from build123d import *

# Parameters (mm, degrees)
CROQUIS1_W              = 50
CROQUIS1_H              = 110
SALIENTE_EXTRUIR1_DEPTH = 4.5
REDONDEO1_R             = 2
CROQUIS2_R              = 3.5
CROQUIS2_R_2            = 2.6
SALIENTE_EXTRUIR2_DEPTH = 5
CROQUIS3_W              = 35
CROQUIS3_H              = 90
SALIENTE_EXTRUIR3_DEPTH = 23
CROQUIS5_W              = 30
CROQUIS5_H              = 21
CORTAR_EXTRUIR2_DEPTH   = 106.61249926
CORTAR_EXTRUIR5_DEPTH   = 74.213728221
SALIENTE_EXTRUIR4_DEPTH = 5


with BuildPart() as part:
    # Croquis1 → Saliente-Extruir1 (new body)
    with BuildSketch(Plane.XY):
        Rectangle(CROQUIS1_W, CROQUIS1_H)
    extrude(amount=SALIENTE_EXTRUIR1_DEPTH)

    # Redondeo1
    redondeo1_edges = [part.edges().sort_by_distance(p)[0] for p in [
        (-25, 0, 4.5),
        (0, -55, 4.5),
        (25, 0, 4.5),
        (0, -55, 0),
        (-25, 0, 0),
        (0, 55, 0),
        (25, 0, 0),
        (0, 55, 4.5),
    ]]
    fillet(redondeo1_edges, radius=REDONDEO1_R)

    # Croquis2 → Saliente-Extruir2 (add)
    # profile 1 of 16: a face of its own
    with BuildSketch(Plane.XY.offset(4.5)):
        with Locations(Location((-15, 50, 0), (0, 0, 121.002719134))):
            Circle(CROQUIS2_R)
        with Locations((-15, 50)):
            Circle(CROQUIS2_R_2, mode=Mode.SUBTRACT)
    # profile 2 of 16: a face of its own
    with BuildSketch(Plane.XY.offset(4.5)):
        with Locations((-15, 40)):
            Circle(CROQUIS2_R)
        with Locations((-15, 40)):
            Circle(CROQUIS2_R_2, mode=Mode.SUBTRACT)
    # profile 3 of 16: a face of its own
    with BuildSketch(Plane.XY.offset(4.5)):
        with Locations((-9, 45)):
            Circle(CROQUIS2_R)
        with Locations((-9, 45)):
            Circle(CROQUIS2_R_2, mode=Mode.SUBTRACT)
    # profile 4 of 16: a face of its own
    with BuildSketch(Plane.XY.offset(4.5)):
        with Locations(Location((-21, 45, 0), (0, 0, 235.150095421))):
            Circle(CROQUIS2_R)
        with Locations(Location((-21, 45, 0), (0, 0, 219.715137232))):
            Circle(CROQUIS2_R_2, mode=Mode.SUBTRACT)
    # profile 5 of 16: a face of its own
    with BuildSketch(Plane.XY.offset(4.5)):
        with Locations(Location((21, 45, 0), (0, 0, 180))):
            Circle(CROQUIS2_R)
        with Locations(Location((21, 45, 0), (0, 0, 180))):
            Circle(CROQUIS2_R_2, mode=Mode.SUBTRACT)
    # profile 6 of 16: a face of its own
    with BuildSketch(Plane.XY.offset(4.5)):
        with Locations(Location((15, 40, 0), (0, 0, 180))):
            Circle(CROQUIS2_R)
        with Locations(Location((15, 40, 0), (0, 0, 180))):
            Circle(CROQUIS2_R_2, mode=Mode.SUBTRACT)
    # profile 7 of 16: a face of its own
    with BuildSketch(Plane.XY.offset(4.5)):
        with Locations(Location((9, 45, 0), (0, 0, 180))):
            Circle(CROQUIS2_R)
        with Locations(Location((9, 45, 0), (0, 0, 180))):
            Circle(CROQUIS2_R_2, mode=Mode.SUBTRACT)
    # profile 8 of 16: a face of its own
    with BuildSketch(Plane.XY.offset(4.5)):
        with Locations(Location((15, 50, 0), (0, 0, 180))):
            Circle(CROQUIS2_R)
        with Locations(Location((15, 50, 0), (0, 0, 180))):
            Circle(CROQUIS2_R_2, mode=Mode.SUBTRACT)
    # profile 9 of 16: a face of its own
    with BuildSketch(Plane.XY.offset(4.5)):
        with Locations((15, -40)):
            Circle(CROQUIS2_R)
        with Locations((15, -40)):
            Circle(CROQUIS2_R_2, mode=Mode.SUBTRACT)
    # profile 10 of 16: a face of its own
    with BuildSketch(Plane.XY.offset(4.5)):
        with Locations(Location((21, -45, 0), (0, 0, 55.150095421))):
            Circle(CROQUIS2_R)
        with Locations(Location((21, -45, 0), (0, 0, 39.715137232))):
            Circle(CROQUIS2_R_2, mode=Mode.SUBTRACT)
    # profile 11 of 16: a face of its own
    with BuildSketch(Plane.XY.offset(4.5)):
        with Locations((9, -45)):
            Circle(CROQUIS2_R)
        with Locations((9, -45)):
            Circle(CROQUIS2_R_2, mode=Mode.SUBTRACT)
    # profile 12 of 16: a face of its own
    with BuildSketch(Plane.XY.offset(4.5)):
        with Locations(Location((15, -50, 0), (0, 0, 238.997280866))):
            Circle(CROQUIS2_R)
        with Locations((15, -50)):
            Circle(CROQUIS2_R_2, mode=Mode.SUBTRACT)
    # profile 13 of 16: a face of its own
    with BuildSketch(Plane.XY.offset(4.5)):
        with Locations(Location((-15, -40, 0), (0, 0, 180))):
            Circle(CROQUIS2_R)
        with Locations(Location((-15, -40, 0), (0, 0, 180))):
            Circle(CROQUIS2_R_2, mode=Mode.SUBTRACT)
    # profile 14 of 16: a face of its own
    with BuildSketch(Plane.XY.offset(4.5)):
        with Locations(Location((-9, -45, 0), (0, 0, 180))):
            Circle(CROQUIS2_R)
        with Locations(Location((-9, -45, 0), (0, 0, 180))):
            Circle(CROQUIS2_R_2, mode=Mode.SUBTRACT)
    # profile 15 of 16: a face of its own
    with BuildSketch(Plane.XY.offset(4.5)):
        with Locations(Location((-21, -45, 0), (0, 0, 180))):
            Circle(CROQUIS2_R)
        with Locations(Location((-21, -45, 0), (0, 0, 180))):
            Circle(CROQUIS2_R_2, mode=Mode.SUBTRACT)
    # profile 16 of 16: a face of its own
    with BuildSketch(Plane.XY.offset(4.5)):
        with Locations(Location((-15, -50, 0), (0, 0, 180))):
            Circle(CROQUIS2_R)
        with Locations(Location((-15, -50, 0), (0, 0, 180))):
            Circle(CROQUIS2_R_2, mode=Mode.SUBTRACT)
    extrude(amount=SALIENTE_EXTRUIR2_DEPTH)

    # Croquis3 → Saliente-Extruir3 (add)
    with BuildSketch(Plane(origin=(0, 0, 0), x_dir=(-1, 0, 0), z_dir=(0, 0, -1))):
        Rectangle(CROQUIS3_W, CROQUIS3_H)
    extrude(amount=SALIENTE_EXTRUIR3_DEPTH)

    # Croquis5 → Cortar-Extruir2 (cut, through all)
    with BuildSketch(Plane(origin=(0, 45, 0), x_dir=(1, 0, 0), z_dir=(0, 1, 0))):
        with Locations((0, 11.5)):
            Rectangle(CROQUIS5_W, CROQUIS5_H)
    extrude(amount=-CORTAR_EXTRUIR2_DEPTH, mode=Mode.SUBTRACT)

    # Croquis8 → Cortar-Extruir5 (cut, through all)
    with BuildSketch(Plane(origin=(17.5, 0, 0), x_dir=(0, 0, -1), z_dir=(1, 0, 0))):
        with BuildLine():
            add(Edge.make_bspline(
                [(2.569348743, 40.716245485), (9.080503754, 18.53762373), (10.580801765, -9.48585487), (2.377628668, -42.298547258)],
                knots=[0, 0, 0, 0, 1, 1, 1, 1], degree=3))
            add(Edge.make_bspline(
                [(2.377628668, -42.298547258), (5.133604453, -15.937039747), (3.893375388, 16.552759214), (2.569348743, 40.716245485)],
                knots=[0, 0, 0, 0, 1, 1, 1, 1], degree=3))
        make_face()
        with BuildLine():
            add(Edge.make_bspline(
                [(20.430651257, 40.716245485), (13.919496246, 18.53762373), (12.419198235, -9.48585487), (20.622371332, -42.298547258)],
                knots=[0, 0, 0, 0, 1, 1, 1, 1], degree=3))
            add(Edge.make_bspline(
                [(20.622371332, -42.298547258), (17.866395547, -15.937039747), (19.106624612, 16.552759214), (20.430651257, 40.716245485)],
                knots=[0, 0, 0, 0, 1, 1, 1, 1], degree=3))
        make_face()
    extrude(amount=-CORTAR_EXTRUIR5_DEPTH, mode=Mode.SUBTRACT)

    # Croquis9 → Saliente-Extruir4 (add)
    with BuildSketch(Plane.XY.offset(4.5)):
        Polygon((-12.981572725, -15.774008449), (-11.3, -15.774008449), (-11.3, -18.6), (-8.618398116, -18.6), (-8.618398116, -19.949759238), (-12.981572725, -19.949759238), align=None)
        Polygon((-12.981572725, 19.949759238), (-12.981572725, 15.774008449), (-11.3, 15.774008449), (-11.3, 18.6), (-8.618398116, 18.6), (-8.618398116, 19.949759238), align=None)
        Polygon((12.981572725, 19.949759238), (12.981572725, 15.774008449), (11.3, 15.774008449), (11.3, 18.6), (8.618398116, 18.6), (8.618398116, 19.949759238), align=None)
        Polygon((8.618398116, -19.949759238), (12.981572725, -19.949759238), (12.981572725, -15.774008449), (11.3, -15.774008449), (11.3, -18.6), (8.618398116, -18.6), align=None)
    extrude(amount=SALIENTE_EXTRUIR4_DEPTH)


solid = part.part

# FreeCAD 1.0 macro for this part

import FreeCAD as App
import Part
import Sketcher
Q = App.Units.Quantity


def edges_at(feature, points):
    """Names of the edges that pass closest to the given points."""
    edges = feature.Shape.Edges
    near = lambda p: min(range(len(edges)), key=lambda i: edges[i].distToShape(Part.Vertex(*p))[0])
    return sorted({f"Edge{near(p) + 1}" for p in points})


def add_polygon(sketch, points):
    """Adds a closed chain of lines whose ends are joined by coincident constraints."""
    first, n = sketch.GeometryCount, len(points)
    for a, b in zip(points, points[1:] + points[:1]):
        sketch.addGeometry(Part.LineSegment(App.Vector(*a, 0), App.Vector(*b, 0)), False)
    for i in range(n):
        sketch.addConstraint(Sketcher.Constraint("Coincident", first + i, 2, first + (i + 1) % n, 1))

doc = App.newDocument("Part")
body = doc.addObject("PartDesign::Body", "Body")

sketch1 = body.newObject("Sketcher::SketchObject", "Sketch")
sketch1.AttachmentSupport = (doc.getObject("XY_Plane"), [""])
sketch1.MapMode = "FlatFace"
add_polygon(sketch1, [(-25, 55), (-25, -55), (25, -55), (25, 55)])
sketch1.addConstraint(Sketcher.Constraint("Vertical", 0))
sketch1.addConstraint(Sketcher.Constraint("Horizontal", 1))
sketch1.addConstraint(Sketcher.Constraint("Vertical", 2))
sketch1.addConstraint(Sketcher.Constraint("Horizontal", 3))
sketch1.addConstraint(Sketcher.Constraint("Symmetric", 0, 2, 2, 2, -1, 1))
sketch1.addConstraint(Sketcher.Constraint("DistanceX", 1, 1, 1, 2, Q("50 mm")))
sketch1.addConstraint(Sketcher.Constraint("DistanceY", 0, 2, 0, 1, Q("110 mm")))
pad1 = body.newObject("PartDesign::Pad", "Pad")
pad1.Profile = sketch1
pad1.Length = 4.5
doc.recompute()

fillet = body.newObject("PartDesign::Fillet", "Fillet")
fillet.Base = (pad1, edges_at(pad1, [
    (-25, 0, 4.5),
    (0, -55, 4.5),
    (25, 0, 4.5),
    (0, -55, 0),
    (-25, 0, 0),
    (0, 55, 0),
    (25, 0, 0),
    (0, 55, 4.5),
]))
fillet.Radius = 2

sketch2 = body.newObject("Sketcher::SketchObject", "Sketch001")
sketch2.AttachmentSupport = (doc.getObject("XY_Plane"), [""])
sketch2.MapMode = "FlatFace"
sketch2.AttachmentOffset = App.Placement(App.Vector(0, 0, 4.5), App.Rotation())
sketch2.addGeometry(Part.Circle(App.Vector(-15, 50, 0), App.Vector(0, 0, 1), 3.5), False)
sketch2.addGeometry(Part.Circle(App.Vector(-15, 50, 0), App.Vector(0, 0, 1), 2.6), False)
sketch2.addGeometry(Part.Circle(App.Vector(-15, 40, 0), App.Vector(0, 0, 1), 3.5), False)
sketch2.addGeometry(Part.Circle(App.Vector(-15, 40, 0), App.Vector(0, 0, 1), 2.6), False)
sketch2.addGeometry(Part.Circle(App.Vector(-9, 45, 0), App.Vector(0, 0, 1), 3.5), False)
sketch2.addGeometry(Part.Circle(App.Vector(-9, 45, 0), App.Vector(0, 0, 1), 2.6), False)
sketch2.addGeometry(Part.Circle(App.Vector(-21, 45, 0), App.Vector(0, 0, 1), 3.5), False)
sketch2.addGeometry(Part.Circle(App.Vector(-21, 45, 0), App.Vector(0, 0, 1), 2.6), False)
sketch2.addGeometry(Part.Circle(App.Vector(21, 45, 0), App.Vector(0, 0, 1), 3.5), False)
sketch2.addGeometry(Part.Circle(App.Vector(21, 45, 0), App.Vector(0, 0, 1), 2.6), False)
sketch2.addGeometry(Part.Circle(App.Vector(15, 40, 0), App.Vector(0, 0, 1), 3.5), False)
sketch2.addGeometry(Part.Circle(App.Vector(15, 40, 0), App.Vector(0, 0, 1), 2.6), False)
sketch2.addGeometry(Part.Circle(App.Vector(9, 45, 0), App.Vector(0, 0, 1), 3.5), False)
sketch2.addGeometry(Part.Circle(App.Vector(9, 45, 0), App.Vector(0, 0, 1), 2.6), False)
sketch2.addGeometry(Part.Circle(App.Vector(15, 50, 0), App.Vector(0, 0, 1), 3.5), False)
sketch2.addGeometry(Part.Circle(App.Vector(15, 50, 0), App.Vector(0, 0, 1), 2.6), False)
sketch2.addGeometry(Part.Circle(App.Vector(15, -40, 0), App.Vector(0, 0, 1), 3.5), False)
sketch2.addGeometry(Part.Circle(App.Vector(15, -40, 0), App.Vector(0, 0, 1), 2.6), False)
sketch2.addGeometry(Part.Circle(App.Vector(21, -45, 0), App.Vector(0, 0, 1), 3.5), False)
sketch2.addGeometry(Part.Circle(App.Vector(21, -45, 0), App.Vector(0, 0, 1), 2.6), False)
sketch2.addGeometry(Part.Circle(App.Vector(9, -45, 0), App.Vector(0, 0, 1), 3.5), False)
sketch2.addGeometry(Part.Circle(App.Vector(9, -45, 0), App.Vector(0, 0, 1), 2.6), False)
sketch2.addGeometry(Part.Circle(App.Vector(15, -50, 0), App.Vector(0, 0, 1), 3.5), False)
sketch2.addGeometry(Part.Circle(App.Vector(15, -50, 0), App.Vector(0, 0, 1), 2.6), False)
sketch2.addGeometry(Part.Circle(App.Vector(-15, -40, 0), App.Vector(0, 0, 1), 3.5), False)
sketch2.addGeometry(Part.Circle(App.Vector(-15, -40, 0), App.Vector(0, 0, 1), 2.6), False)
sketch2.addGeometry(Part.Circle(App.Vector(-9, -45, 0), App.Vector(0, 0, 1), 3.5), False)
sketch2.addGeometry(Part.Circle(App.Vector(-9, -45, 0), App.Vector(0, 0, 1), 2.6), False)
sketch2.addGeometry(Part.Circle(App.Vector(-21, -45, 0), App.Vector(0, 0, 1), 3.5), False)
sketch2.addGeometry(Part.Circle(App.Vector(-21, -45, 0), App.Vector(0, 0, 1), 2.6), False)
sketch2.addGeometry(Part.Circle(App.Vector(-15, -50, 0), App.Vector(0, 0, 1), 3.5), False)
sketch2.addGeometry(Part.Circle(App.Vector(-15, -50, 0), App.Vector(0, 0, 1), 2.6), False)
sketch2.addConstraint(Sketcher.Constraint("Coincident", 1, 3, 0, 3))
sketch2.addConstraint(Sketcher.Constraint("Coincident", 3, 3, 2, 3))
sketch2.addConstraint(Sketcher.Constraint("Coincident", 5, 3, 4, 3))
sketch2.addConstraint(Sketcher.Constraint("Coincident", 7, 3, 6, 3))
sketch2.addConstraint(Sketcher.Constraint("Coincident", 9, 3, 8, 3))
sketch2.addConstraint(Sketcher.Constraint("Coincident", 11, 3, 10, 3))
sketch2.addConstraint(Sketcher.Constraint("Coincident", 13, 3, 12, 3))
sketch2.addConstraint(Sketcher.Constraint("Coincident", 15, 3, 14, 3))
sketch2.addConstraint(Sketcher.Constraint("Coincident", 17, 3, 16, 3))
sketch2.addConstraint(Sketcher.Constraint("Coincident", 19, 3, 18, 3))
sketch2.addConstraint(Sketcher.Constraint("Coincident", 21, 3, 20, 3))
sketch2.addConstraint(Sketcher.Constraint("Coincident", 23, 3, 22, 3))
sketch2.addConstraint(Sketcher.Constraint("Coincident", 25, 3, 24, 3))
sketch2.addConstraint(Sketcher.Constraint("Coincident", 27, 3, 26, 3))
sketch2.addConstraint(Sketcher.Constraint("Coincident", 29, 3, 28, 3))
sketch2.addConstraint(Sketcher.Constraint("Coincident", 31, 3, 30, 3))
sketch2.addConstraint(Sketcher.Constraint("Equal", 0, 2))
sketch2.addConstraint(Sketcher.Constraint("Equal", 1, 3))
sketch2.addConstraint(Sketcher.Constraint("Equal", 2, 4))
sketch2.addConstraint(Sketcher.Constraint("Equal", 3, 5))
sketch2.addConstraint(Sketcher.Constraint("Equal", 4, 6))
sketch2.addConstraint(Sketcher.Constraint("Equal", 5, 7))
sketch2.addConstraint(Sketcher.Constraint("Equal", 6, 8))
sketch2.addConstraint(Sketcher.Constraint("Equal", 7, 9))
sketch2.addConstraint(Sketcher.Constraint("Equal", 8, 10))
sketch2.addConstraint(Sketcher.Constraint("Equal", 9, 11))
sketch2.addConstraint(Sketcher.Constraint("Equal", 10, 12))
sketch2.addConstraint(Sketcher.Constraint("Equal", 11, 13))
sketch2.addConstraint(Sketcher.Constraint("Equal", 12, 14))
sketch2.addConstraint(Sketcher.Constraint("Equal", 13, 15))
sketch2.addConstraint(Sketcher.Constraint("Equal", 14, 16))
sketch2.addConstraint(Sketcher.Constraint("Equal", 15, 17))
sketch2.addConstraint(Sketcher.Constraint("Equal", 16, 18))
sketch2.addConstraint(Sketcher.Constraint("Equal", 17, 19))
sketch2.addConstraint(Sketcher.Constraint("Equal", 18, 20))
sketch2.addConstraint(Sketcher.Constraint("Equal", 19, 21))
sketch2.addConstraint(Sketcher.Constraint("Equal", 20, 22))
sketch2.addConstraint(Sketcher.Constraint("Equal", 21, 23))
sketch2.addConstraint(Sketcher.Constraint("Equal", 22, 24))
sketch2.addConstraint(Sketcher.Constraint("Equal", 23, 25))
sketch2.addConstraint(Sketcher.Constraint("Equal", 24, 26))
sketch2.addConstraint(Sketcher.Constraint("Equal", 25, 27))
sketch2.addConstraint(Sketcher.Constraint("Equal", 26, 28))
sketch2.addConstraint(Sketcher.Constraint("Equal", 27, 29))
sketch2.addConstraint(Sketcher.Constraint("Equal", 28, 30))
sketch2.addConstraint(Sketcher.Constraint("Equal", 29, 31))
sketch2.addConstraint(Sketcher.Constraint("Symmetric", 2, 3, 16, 3, -1, 1))
sketch2.addConstraint(Sketcher.Constraint("Symmetric", 6, 3, 18, 3, -1, 1))
sketch2.addConstraint(Sketcher.Constraint("Symmetric", 4, 3, 20, 3, -1, 1))
sketch2.addConstraint(Sketcher.Constraint("Symmetric", 0, 3, 22, 3, -1, 1))
sketch2.addConstraint(Sketcher.Constraint("Symmetric", 10, 3, 24, 3, -1, 1))
sketch2.addConstraint(Sketcher.Constraint("Symmetric", 12, 3, 26, 3, -1, 1))
sketch2.addConstraint(Sketcher.Constraint("Symmetric", 8, 3, 28, 3, -1, 1))
sketch2.addConstraint(Sketcher.Constraint("Symmetric", 14, 3, 30, 3, -1, 1))
sketch2.addConstraint(Sketcher.Constraint("Symmetric", 6, 3, 8, 3, -2))
sketch2.addConstraint(Sketcher.Constraint("Symmetric", 2, 3, 10, 3, -2))
sketch2.addConstraint(Sketcher.Constraint("Symmetric", 4, 3, 12, 3, -2))
sketch2.addConstraint(Sketcher.Constraint("Symmetric", 0, 3, 14, 3, -2))
sketch2.addConstraint(Sketcher.Constraint("Horizontal", 5, 3, 6, 3))
sketch2.addConstraint(Sketcher.Constraint("Vertical", 1, 3, 2, 3))
sketch2.addConstraint(Sketcher.Constraint("Diameter", 0, Q("7 mm")))
sketch2.addConstraint(Sketcher.Constraint("Diameter", 1, Q("5.2 mm")))
sketch2.addConstraint(Sketcher.Constraint("DistanceX", 0, 3, -1, 1, Q("15 mm")))
sketch2.addConstraint(Sketcher.Constraint("DistanceY", -1, 1, 0, 3, Q("50 mm")))
sketch2.addConstraint(Sketcher.Constraint("DistanceY", -1, 1, 2, 3, Q("40 mm")))
sketch2.addConstraint(Sketcher.Constraint("DistanceX", 4, 3, -1, 1, Q("9 mm")))
sketch2.addConstraint(Sketcher.Constraint("DistanceY", -1, 1, 4, 3, Q("45 mm")))
sketch2.addConstraint(Sketcher.Constraint("DistanceX", 6, 3, -1, 1, Q("21 mm")))
pad2 = body.newObject("PartDesign::Pad", "Pad001")
pad2.Profile = sketch2
pad2.Length = 5

sketch3 = body.newObject("Sketcher::SketchObject", "Sketch002")
sketch3.AttachmentSupport = (doc.getObject("XY_Plane"), [""])
sketch3.MapMode = "FlatFace"
add_polygon(sketch3, [(18, 45), (18, -45), (-18, -45), (-18, 45)])
sketch3.addConstraint(Sketcher.Constraint("Vertical", 0))
sketch3.addConstraint(Sketcher.Constraint("Horizontal", 1))
sketch3.addConstraint(Sketcher.Constraint("Vertical", 2))
sketch3.addConstraint(Sketcher.Constraint("Horizontal", 3))
sketch3.addConstraint(Sketcher.Constraint("Symmetric", 0, 2, 2, 2, -1, 1))
sketch3.addConstraint(Sketcher.Constraint("DistanceX", 1, 2, 1, 1, Q("35 mm")))
sketch3.addConstraint(Sketcher.Constraint("DistanceY", 0, 2, 0, 1, Q("90 mm")))
pad3 = body.newObject("PartDesign::Pad", "Pad002")
pad3.Profile = sketch3
pad3.Length = 23
pad3.Reversed = True

sketch4 = body.newObject("Sketcher::SketchObject", "Sketch003")
sketch4.AttachmentSupport = (doc.getObject("XZ_Plane"), [""])
sketch4.MapMode = "FlatFace"
sketch4.AttachmentOffset = App.Placement(App.Vector(0, 0, -45), App.Rotation())
add_polygon(sketch4, [(-15, -22), (-15, -1), (15, -1), (15, -22)])
sketch4.addConstraint(Sketcher.Constraint("Vertical", 0))
sketch4.addConstraint(Sketcher.Constraint("Horizontal", 1))
sketch4.addConstraint(Sketcher.Constraint("Vertical", 2))
sketch4.addConstraint(Sketcher.Constraint("Horizontal", 3))
sketch4.addConstraint(Sketcher.Constraint("DistanceX", 1, 1, 1, 2, Q("30 mm")))
sketch4.addConstraint(Sketcher.Constraint("DistanceY", 0, 1, 0, 2, Q("21 mm")))
sketch4.addConstraint(Sketcher.Constraint("DistanceX", 0, 2, -1, 1, Q("15 mm")))
sketch4.addConstraint(Sketcher.Constraint("DistanceY", 0, 2, -1, 1, Q("1 mm")))
pocket1 = body.newObject("PartDesign::Pocket", "Pocket")
pocket1.Profile = sketch4
pocket1.Type = "ThroughAll"
pocket1.Reversed = True

sketch5 = body.newObject("Sketcher::SketchObject", "Sketch004")
sketch5.AttachmentSupport = (doc.getObject("YZ_Plane"), [""])
sketch5.MapMode = "FlatFace"
sketch5.AttachmentOffset = App.Placement(App.Vector(0, 0, 17.5), App.Rotation())
sketch5.addGeometry(Part.BSplineCurve([App.Vector(40.716245, -2.569349, 0), App.Vector(18.537624, -9.080504, 0), App.Vector(-9.485855, -10.580802, 0), App.Vector(-42.298547, -2.377629, 0)], [4, 4], [0, 1], False, 3, [1, 1, 1, 1], False), False)
sketch5.addGeometry(Part.BSplineCurve([App.Vector(-42.298547, -2.377629, 0), App.Vector(-15.93704, -5.133604, 0), App.Vector(16.552759, -3.893375, 0), App.Vector(40.716245, -2.569349, 0)], [4, 4], [0, 1], False, 3, [1, 1, 1, 1], False), False)
sketch5.addGeometry(Part.BSplineCurve([App.Vector(40.716245, -20.430651, 0), App.Vector(18.537624, -13.919496, 0), App.Vector(-9.485855, -12.419198, 0), App.Vector(-42.298547, -20.622371, 0)], [4, 4], [0, 1], False, 3, [1, 1, 1, 1], False), False)
sketch5.addGeometry(Part.BSplineCurve([App.Vector(-42.298547, -20.622371, 0), App.Vector(-15.93704, -17.866396, 0), App.Vector(16.552759, -19.106625, 0), App.Vector(40.716245, -20.430651, 0)], [4, 4], [0, 1], False, 3, [1, 1, 1, 1], False), False)
sketch5.addConstraint(Sketcher.Constraint("Block", 0))
sketch5.addConstraint(Sketcher.Constraint("Block", 1))
sketch5.addConstraint(Sketcher.Constraint("Block", 2))
sketch5.addConstraint(Sketcher.Constraint("Block", 3))
pocket2 = body.newObject("PartDesign::Pocket", "Pocket001")
pocket2.Profile = sketch5
pocket2.Type = "ThroughAll"

sketch6 = body.newObject("Sketcher::SketchObject", "Sketch005")
sketch6.AttachmentSupport = (doc.getObject("XY_Plane"), [""])
sketch6.MapMode = "FlatFace"
sketch6.AttachmentOffset = App.Placement(App.Vector(0, 0, 4.5), App.Rotation())
add_polygon(sketch6, [(-11.3, -15.8), (-13, -15.8), (-13, -19.9), (-8.6, -19.9), (-8.6, -18.6), (-11.3, -18.6)])
add_polygon(sketch6, [(-13, 19.9), (-13, 15.8), (-11.3, 15.8), (-11.3, 18.6), (-8.6, 18.6), (-8.6, 19.9)])
add_polygon(sketch6, [(13, 15.8), (13, 19.9), (8.6, 19.9), (8.6, 18.6), (11.3, 18.6), (11.3, 15.8)])
add_polygon(sketch6, [(8.6, -19.9), (13, -19.9), (13, -15.8), (11.3, -15.8), (11.3, -18.6), (8.6, -18.6)])
sketch6.addConstraint(Sketcher.Constraint("Horizontal", 0))
sketch6.addConstraint(Sketcher.Constraint("Vertical", 1))
sketch6.addConstraint(Sketcher.Constraint("Horizontal", 2))
sketch6.addConstraint(Sketcher.Constraint("Vertical", 3))
sketch6.addConstraint(Sketcher.Constraint("Horizontal", 4))
sketch6.addConstraint(Sketcher.Constraint("Vertical", 5))
sketch6.addConstraint(Sketcher.Constraint("Vertical", 6))
sketch6.addConstraint(Sketcher.Constraint("Horizontal", 7))
sketch6.addConstraint(Sketcher.Constraint("Vertical", 8))
sketch6.addConstraint(Sketcher.Constraint("Horizontal", 9))
sketch6.addConstraint(Sketcher.Constraint("Vertical", 10))
sketch6.addConstraint(Sketcher.Constraint("Horizontal", 11))
sketch6.addConstraint(Sketcher.Constraint("Vertical", 12))
sketch6.addConstraint(Sketcher.Constraint("Horizontal", 13))
sketch6.addConstraint(Sketcher.Constraint("Vertical", 14))
sketch6.addConstraint(Sketcher.Constraint("Horizontal", 15))
sketch6.addConstraint(Sketcher.Constraint("Vertical", 16))
sketch6.addConstraint(Sketcher.Constraint("Horizontal", 17))
sketch6.addConstraint(Sketcher.Constraint("Horizontal", 18))
sketch6.addConstraint(Sketcher.Constraint("Vertical", 19))
sketch6.addConstraint(Sketcher.Constraint("Horizontal", 20))
sketch6.addConstraint(Sketcher.Constraint("Vertical", 21))
sketch6.addConstraint(Sketcher.Constraint("Horizontal", 22))
sketch6.addConstraint(Sketcher.Constraint("Vertical", 23))
sketch6.addConstraint(Sketcher.Constraint("Symmetric", 1, 2, 12, 2, -1, 1))
sketch6.addConstraint(Sketcher.Constraint("Symmetric", 3, 2, 14, 2, -1, 1))
sketch6.addConstraint(Sketcher.Constraint("Symmetric", 5, 2, 16, 2, -1, 1))
sketch6.addConstraint(Sketcher.Constraint("Symmetric", 11, 2, 18, 2, -1, 1))
sketch6.addConstraint(Sketcher.Constraint("Symmetric", 7, 2, 20, 2, -1, 1))
sketch6.addConstraint(Sketcher.Constraint("Symmetric", 9, 2, 22, 2, -1, 1))
sketch6.addConstraint(Sketcher.Constraint("Symmetric", 11, 2, 12, 2, -2))
sketch6.addConstraint(Sketcher.Constraint("Symmetric", 9, 2, 14, 2, -2))
sketch6.addConstraint(Sketcher.Constraint("Symmetric", 7, 2, 16, 2, -2))
sketch6.addConstraint(Sketcher.Constraint("DistanceY", 3, 2, -1, 1, Q("18.6 mm")))
sketch6.addConstraint(Sketcher.Constraint("DistanceX", 4, 2, -1, 1, Q("11.3 mm")))
sketch6.addConstraint(Sketcher.Constraint("DistanceX", 4, 2, 4, 1, Q("2.681602 mm")))
sketch6.addConstraint(Sketcher.Constraint("DistanceY", 1, 2, 1, 1, Q("4.175751 mm")))
sketch6.addConstraint(Sketcher.Constraint("DistanceY", 3, 1, 3, 2, Q("1.349759 mm")))
sketch6.addConstraint(Sketcher.Constraint("DistanceX", 0, 2, 0, 1, Q("1.681573 mm")))
pad4 = body.newObject("PartDesign::Pad", "Pad003")
pad4.Profile = sketch6
pad4.Length = 5

doc.recompute()
